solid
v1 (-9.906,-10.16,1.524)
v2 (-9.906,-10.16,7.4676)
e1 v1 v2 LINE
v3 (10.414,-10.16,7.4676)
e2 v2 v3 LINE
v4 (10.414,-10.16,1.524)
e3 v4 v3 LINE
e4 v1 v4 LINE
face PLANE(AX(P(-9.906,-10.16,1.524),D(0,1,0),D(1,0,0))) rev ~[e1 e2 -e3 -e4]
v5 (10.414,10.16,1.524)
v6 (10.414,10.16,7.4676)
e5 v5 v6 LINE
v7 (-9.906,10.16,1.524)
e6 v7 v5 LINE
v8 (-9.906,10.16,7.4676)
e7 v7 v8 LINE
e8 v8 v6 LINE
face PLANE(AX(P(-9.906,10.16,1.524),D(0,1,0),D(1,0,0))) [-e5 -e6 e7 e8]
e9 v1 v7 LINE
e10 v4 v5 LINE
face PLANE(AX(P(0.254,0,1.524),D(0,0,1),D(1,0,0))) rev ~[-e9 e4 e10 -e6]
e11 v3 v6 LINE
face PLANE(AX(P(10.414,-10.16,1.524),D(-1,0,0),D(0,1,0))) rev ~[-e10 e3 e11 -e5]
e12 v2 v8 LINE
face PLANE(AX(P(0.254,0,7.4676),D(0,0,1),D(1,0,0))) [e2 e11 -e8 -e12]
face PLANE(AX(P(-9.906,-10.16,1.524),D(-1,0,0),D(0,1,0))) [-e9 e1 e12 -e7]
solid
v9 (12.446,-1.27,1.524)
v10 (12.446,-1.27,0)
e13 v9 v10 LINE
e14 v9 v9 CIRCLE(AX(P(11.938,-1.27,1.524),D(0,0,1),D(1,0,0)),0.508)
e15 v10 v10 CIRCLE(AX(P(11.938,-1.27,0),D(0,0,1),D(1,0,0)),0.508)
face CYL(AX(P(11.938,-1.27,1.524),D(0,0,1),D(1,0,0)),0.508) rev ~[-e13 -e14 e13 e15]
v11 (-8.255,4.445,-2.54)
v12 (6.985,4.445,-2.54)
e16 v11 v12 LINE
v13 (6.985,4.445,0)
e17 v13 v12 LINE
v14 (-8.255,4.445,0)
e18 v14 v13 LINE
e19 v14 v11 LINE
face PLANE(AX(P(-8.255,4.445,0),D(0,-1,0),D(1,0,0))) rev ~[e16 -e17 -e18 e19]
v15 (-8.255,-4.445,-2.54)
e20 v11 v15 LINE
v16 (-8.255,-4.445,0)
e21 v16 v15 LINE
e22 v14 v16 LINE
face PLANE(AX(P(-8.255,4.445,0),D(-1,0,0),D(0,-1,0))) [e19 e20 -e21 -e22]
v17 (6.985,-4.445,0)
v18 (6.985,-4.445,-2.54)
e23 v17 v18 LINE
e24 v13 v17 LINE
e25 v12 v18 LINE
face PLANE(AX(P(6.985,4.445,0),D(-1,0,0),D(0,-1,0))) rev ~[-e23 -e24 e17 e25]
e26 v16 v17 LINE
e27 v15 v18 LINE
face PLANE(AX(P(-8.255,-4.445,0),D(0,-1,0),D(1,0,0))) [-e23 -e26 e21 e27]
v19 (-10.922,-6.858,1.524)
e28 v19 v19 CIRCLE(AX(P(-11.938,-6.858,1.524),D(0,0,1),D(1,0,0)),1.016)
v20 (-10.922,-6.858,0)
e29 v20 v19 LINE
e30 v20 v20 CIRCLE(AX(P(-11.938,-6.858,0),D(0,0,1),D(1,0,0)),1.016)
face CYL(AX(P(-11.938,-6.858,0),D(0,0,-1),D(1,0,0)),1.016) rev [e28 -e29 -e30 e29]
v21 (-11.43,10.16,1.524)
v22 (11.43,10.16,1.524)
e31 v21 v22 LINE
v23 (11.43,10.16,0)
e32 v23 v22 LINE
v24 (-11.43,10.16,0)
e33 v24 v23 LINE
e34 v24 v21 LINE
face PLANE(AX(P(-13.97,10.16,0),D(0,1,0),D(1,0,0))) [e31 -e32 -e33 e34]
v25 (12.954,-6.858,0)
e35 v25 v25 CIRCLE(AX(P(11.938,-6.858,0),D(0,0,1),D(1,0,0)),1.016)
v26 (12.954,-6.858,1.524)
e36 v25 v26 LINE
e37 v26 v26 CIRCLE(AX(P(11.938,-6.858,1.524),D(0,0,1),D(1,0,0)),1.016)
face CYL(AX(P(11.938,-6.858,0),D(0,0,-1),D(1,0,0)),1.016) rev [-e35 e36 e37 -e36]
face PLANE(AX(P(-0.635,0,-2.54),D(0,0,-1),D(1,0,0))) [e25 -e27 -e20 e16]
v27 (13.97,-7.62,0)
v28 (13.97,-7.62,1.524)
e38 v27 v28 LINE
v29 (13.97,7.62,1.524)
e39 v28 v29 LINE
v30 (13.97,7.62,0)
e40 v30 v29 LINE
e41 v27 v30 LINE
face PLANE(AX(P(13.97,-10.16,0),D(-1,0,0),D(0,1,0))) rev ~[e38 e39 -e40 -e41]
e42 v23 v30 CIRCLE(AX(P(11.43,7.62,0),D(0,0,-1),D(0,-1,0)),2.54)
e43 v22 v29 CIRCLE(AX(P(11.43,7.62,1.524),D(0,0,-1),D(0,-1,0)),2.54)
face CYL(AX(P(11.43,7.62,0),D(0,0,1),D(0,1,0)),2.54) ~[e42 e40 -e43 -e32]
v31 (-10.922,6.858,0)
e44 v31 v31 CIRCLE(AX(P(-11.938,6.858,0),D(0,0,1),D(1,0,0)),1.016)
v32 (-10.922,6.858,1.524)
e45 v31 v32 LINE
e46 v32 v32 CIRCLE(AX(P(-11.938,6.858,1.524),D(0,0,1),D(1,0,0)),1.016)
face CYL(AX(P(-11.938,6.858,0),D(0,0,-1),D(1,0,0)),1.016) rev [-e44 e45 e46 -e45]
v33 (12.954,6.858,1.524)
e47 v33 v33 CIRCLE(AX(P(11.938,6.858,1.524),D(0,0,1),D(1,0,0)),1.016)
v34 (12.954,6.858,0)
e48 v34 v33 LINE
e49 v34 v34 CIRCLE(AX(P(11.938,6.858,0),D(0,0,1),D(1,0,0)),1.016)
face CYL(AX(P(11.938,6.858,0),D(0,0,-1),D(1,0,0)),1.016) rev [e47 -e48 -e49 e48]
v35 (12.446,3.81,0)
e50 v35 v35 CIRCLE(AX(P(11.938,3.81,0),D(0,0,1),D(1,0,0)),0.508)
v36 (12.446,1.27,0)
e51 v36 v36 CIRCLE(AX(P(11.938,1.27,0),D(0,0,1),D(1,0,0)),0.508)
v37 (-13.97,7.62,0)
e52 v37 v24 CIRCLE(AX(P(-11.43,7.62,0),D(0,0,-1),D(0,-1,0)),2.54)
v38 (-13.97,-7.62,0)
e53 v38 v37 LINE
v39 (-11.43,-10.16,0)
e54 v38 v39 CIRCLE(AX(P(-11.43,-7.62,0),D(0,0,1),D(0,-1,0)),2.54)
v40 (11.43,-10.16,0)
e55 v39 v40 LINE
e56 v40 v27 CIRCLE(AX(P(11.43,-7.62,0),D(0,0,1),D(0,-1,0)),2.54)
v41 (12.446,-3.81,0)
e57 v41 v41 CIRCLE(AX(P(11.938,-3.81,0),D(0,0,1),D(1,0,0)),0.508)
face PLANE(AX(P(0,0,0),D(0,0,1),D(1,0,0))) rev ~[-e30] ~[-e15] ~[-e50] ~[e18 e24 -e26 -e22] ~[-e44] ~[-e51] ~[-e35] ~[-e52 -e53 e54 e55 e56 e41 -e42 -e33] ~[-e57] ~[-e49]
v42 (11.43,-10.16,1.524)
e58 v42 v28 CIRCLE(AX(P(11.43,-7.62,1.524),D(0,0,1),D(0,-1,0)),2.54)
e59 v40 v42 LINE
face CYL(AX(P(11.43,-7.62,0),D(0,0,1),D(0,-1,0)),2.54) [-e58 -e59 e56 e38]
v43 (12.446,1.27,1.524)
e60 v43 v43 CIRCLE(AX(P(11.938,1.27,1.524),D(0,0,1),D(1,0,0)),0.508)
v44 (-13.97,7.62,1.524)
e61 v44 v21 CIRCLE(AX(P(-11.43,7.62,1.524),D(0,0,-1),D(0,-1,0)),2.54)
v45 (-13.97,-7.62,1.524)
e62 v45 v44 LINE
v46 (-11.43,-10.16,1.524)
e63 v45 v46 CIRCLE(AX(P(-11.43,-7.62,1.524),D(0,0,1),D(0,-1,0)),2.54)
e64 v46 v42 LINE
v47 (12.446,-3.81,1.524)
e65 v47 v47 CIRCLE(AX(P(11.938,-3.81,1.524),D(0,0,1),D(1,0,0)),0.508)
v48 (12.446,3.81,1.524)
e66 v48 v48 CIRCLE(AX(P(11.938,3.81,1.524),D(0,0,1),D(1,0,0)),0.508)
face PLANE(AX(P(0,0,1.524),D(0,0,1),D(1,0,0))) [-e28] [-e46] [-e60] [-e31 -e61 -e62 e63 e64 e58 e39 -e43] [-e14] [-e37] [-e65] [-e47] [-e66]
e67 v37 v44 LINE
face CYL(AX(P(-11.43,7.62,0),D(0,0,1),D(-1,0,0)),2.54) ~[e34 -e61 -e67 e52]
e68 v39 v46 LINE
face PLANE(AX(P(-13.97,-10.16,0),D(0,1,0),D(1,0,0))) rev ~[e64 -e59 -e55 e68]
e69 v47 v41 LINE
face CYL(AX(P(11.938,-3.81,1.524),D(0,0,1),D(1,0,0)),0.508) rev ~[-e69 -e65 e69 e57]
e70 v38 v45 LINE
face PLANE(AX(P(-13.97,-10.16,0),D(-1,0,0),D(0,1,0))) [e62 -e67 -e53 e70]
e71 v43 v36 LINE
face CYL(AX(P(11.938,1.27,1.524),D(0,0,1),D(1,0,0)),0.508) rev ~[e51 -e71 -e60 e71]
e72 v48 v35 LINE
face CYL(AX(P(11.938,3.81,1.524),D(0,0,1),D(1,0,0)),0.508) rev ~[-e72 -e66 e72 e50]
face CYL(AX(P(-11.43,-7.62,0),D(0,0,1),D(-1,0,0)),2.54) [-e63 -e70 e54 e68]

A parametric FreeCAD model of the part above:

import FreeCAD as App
import Part
import Sketcher
from FreeCAD import Vector
Q = App.Units.Quantity


def edges_at(feature, points):
    """Names of the edges that pass closest to the given points."""
    edges = feature.Shape.Edges
    near = lambda p: min(range(len(edges)), key=lambda i: edges[i].distToShape(Part.Vertex(*p))[0])
    return sorted({f"Edge{near(p) + 1}" for p in points})

doc = App.newDocument("Part")
body = doc.addObject("PartDesign::Body", "Body")

sketch1 = body.newObject("Sketcher::SketchObject", "Sketch")
sketch1.AttachmentSupport = (doc.getObject("XY_Plane"), [""])
sketch1.MapMode = "FlatFace"
sketch1.addGeometry(Part.LineSegment(Vector(-13.97, 10.16, 0), Vector(-13.97, -10.16, 0)), False)
sketch1.addGeometry(Part.LineSegment(Vector(-13.97, -10.16, 0), Vector(13.97, -10.16, 0)), False)
sketch1.addGeometry(Part.LineSegment(Vector(13.97, -10.16, 0), Vector(13.97, 10.16, 0)), False)
sketch1.addGeometry(Part.LineSegment(Vector(13.97, 10.16, 0), Vector(-13.97, 10.16, 0)), False)
sketch1.addGeometry(Part.Circle(Vector(-11.938, -6.858, 0), Vector(0, 0, 1), 1.016), False)
sketch1.addGeometry(Part.Circle(Vector(11.938, -6.858, 0), Vector(0, 0, 1), 1.016), False)
sketch1.addGeometry(Part.Circle(Vector(-11.938, 6.858, 0), Vector(0, 0, 1), 1.016), False)
sketch1.addGeometry(Part.Circle(Vector(11.938, 6.858, 0), Vector(0, 0, 1), 1.016), False)
sketch1.addConstraint(Sketcher.Constraint("Coincident", 0, 2, 1, 1))
sketch1.addConstraint(Sketcher.Constraint("Coincident", 1, 2, 2, 1))
sketch1.addConstraint(Sketcher.Constraint("Coincident", 2, 2, 3, 1))
sketch1.addConstraint(Sketcher.Constraint("Coincident", 3, 2, 0, 1))
sketch1.addConstraint(Sketcher.Constraint("Vertical", 0))
sketch1.addConstraint(Sketcher.Constraint("Horizontal", 1))
sketch1.addConstraint(Sketcher.Constraint("Vertical", 2))
sketch1.addConstraint(Sketcher.Constraint("Horizontal", 3))
sketch1.addConstraint(Sketcher.Constraint("Equal", 4, 5))
sketch1.addConstraint(Sketcher.Constraint("Equal", 5, 6))
sketch1.addConstraint(Sketcher.Constraint("Equal", 6, 7))
sketch1.addConstraint(Sketcher.Constraint("Symmetric", 5, 3, 6, 3, -1, 1))
sketch1.addConstraint(Sketcher.Constraint("Symmetric", 4, 3, 7, 3, -1, 1))
sketch1.addConstraint(Sketcher.Constraint("Symmetric", 0, 2, 2, 2, -1, 1))
sketch1.addConstraint(Sketcher.Constraint("Symmetric", 4, 3, 5, 3, -2))
sketch1.addConstraint(Sketcher.Constraint("Diameter", 4, Q("0.08 in")))
sketch1.addConstraint(Sketcher.Constraint("DistanceX", 1, 1, 1, 2, Q("1.1 in")))
sketch1.addConstraint(Sketcher.Constraint("DistanceY", 0, 2, 0, 1, Q("0.8 in")))
sketch1.addConstraint(Sketcher.Constraint("DistanceX", 4, 3, -1, 1, Q("0.47 in")))
sketch1.addConstraint(Sketcher.Constraint("DistanceY", 4, 3, -1, 1, Q("0.27 in")))
pad1 = body.newObject("PartDesign::Pad", "Pad")
pad1.Profile = sketch1
pad1.Length = Q("0.06 in")
doc.recompute()

fillet = body.newObject("PartDesign::Fillet", "Fillet")
fillet.Base = (pad1, edges_at(pad1, [
    (13.97, -10.16, 0.762),
    (-13.97, -10.16, 0.762),
    (-13.97, 10.16, 0.762),
    (13.97, 10.16, 0.762),
]))
fillet.Radius = Q("0.1 in")

sketch2 = body.newObject("Sketcher::SketchObject", "Sketch001")
sketch2.AttachmentSupport = (doc.getObject("XY_Plane"), [""])
sketch2.MapMode = "FlatFace"
sketch2.AttachmentOffset = App.Placement(Vector(0, 0, 0.06 * 25.4), App.Rotation())
sketch2.addGeometry(Part.Circle(Vector(11.938, 3.81, 0), Vector(0, 0, 1), 0.508), False)
sketch2.addGeometry(Part.Circle(Vector(11.938, 1.27, 0), Vector(0, 0, 1), 0.508), False)
sketch2.addGeometry(Part.Circle(Vector(11.938, -1.27, 0), Vector(0, 0, 1), 0.508), False)
sketch2.addGeometry(Part.Circle(Vector(11.938, -3.81, 0), Vector(0, 0, 1), 0.508), False)
sketch2.addConstraint(Sketcher.Constraint("Equal", 0, 1))
sketch2.addConstraint(Sketcher.Constraint("Equal", 1, 2))
sketch2.addConstraint(Sketcher.Constraint("Equal", 2, 3))
sketch2.addConstraint(Sketcher.Constraint("Symmetric", 1, 3, 2, 3, -1))
sketch2.addConstraint(Sketcher.Constraint("Symmetric", 0, 3, 3, 3, -1))
sketch2.addConstraint(Sketcher.Constraint("Vertical", 0, 3, 1, 3))
sketch2.addConstraint(Sketcher.Constraint("Diameter", 0, Q("0.04 in")))
sketch2.addConstraint(Sketcher.Constraint("DistanceY", 1, 3, 0, 3, Q("0.1 in")))
sketch2.addConstraint(Sketcher.Constraint("DistanceY", 2, 3, 1, 3, Q("0.1 in")))
sketch2.addConstraint(Sketcher.Constraint("DistanceX", -1, 1, 0, 3, Q("0.47 in")))
pocket1 = body.newObject("PartDesign::Pocket", "Pocket")
pocket1.Profile = sketch2
pocket1.Type = "ThroughAll"

sketch3 = body.newObject("Sketcher::SketchObject", "Sketch002")
sketch3.AttachmentSupport = (doc.getObject("XY_Plane"), [""])
sketch3.MapMode = "FlatFace"
sketch3.addGeometry(Part.LineSegment(Vector(-8.255, -4.445, 0), Vector(-8.255, 4.445, 0)), False)
sketch3.addGeometry(Part.LineSegment(Vector(-8.255, 4.445, 0), Vector(6.985, 4.445, 0)), False)
sketch3.addGeometry(Part.LineSegment(Vector(6.985, 4.445, 0), Vector(6.985, -4.445, 0)), False)
sketch3.addGeometry(Part.LineSegment(Vector(6.985, -4.445, 0), Vector(-8.255, -4.445, 0)), False)
sketch3.addConstraint(Sketcher.Constraint("Coincident", 0, 2, 1, 1))
sketch3.addConstraint(Sketcher.Constraint("Coincident", 1, 2, 2, 1))
sketch3.addConstraint(Sketcher.Constraint("Coincident", 2, 2, 3, 1))
sketch3.addConstraint(Sketcher.Constraint("Coincident", 3, 2, 0, 1))
sketch3.addConstraint(Sketcher.Constraint("Vertical", 0))
sketch3.addConstraint(Sketcher.Constraint("Horizontal", 1))
sketch3.addConstraint(Sketcher.Constraint("Vertical", 2))
sketch3.addConstraint(Sketcher.Constraint("Horizontal", 3))
sketch3.addConstraint(Sketcher.Constraint("DistanceX", 1, 1, 1, 2, Q("0.6 in")))
sketch3.addConstraint(Sketcher.Constraint("DistanceY", 0, 1, 0, 2, Q("0.35 in")))
sketch3.addConstraint(Sketcher.Constraint("DistanceX", 0, 2, -1, 1, Q("0.325 in")))
sketch3.addConstraint(Sketcher.Constraint("DistanceY", -1, 1, 0, 2, Q("0.175 in")))
pad2 = body.newObject("PartDesign::Pad", "Pad001")
pad2.Profile = sketch3
pad2.Length = Q("0.1 in")
pad2.Reversed = True
body2 = doc.addObject("PartDesign::Body", "Body001")

sketch4 = body2.newObject("Sketcher::SketchObject", "Sketch003")
sketch4.AttachmentSupport = (doc.getObject("XY_Plane001"), [""])
sketch4.MapMode = "FlatFace"
sketch4.AttachmentOffset = App.Placement(Vector(0, 0, 0.06 * 25.4), App.Rotation())
sketch4.addGeometry(Part.LineSegment(Vector(-9.906, 10.16, 0), Vector(-9.906, -10.16, 0)), False)
sketch4.addGeometry(Part.LineSegment(Vector(-9.906, -10.16, 0), Vector(10.414, -10.16, 0)), False)
sketch4.addGeometry(Part.LineSegment(Vector(10.414, -10.16, 0), Vector(10.414, 10.16, 0)), False)
sketch4.addGeometry(Part.LineSegment(Vector(10.414, 10.16, 0), Vector(-9.906, 10.16, 0)), False)
sketch4.addConstraint(Sketcher.Constraint("Coincident", 0, 2, 1, 1))
sketch4.addConstraint(Sketcher.Constraint("Coincident", 1, 2, 2, 1))
sketch4.addConstraint(Sketcher.Constraint("Coincident", 2, 2, 3, 1))
sketch4.addConstraint(Sketcher.Constraint("Coincident", 3, 2, 0, 1))
sketch4.addConstraint(Sketcher.Constraint("Vertical", 0))
sketch4.addConstraint(Sketcher.Constraint("Horizontal", 1))
sketch4.addConstraint(Sketcher.Constraint("Vertical", 2))
sketch4.addConstraint(Sketcher.Constraint("Horizontal", 3))
sketch4.addConstraint(Sketcher.Constraint("Equal", 3, 0))
sketch4.addConstraint(Sketcher.Constraint("DistanceX", 1, 1, 1, 2, Q("0.8 in")))
sketch4.addConstraint(Sketcher.Constraint("DistanceY", 0, 2, -1, 1, Q("0.4 in")))
sketch4.addConstraint(Sketcher.Constraint("DistanceX", 0, 2, -1, 1, Q("0.39 in")))
pad3 = body2.newObject("PartDesign::Pad", "Pad002")
pad3.Profile = sketch4
pad3.Length = Q("0.234 in")

doc.recompute()
